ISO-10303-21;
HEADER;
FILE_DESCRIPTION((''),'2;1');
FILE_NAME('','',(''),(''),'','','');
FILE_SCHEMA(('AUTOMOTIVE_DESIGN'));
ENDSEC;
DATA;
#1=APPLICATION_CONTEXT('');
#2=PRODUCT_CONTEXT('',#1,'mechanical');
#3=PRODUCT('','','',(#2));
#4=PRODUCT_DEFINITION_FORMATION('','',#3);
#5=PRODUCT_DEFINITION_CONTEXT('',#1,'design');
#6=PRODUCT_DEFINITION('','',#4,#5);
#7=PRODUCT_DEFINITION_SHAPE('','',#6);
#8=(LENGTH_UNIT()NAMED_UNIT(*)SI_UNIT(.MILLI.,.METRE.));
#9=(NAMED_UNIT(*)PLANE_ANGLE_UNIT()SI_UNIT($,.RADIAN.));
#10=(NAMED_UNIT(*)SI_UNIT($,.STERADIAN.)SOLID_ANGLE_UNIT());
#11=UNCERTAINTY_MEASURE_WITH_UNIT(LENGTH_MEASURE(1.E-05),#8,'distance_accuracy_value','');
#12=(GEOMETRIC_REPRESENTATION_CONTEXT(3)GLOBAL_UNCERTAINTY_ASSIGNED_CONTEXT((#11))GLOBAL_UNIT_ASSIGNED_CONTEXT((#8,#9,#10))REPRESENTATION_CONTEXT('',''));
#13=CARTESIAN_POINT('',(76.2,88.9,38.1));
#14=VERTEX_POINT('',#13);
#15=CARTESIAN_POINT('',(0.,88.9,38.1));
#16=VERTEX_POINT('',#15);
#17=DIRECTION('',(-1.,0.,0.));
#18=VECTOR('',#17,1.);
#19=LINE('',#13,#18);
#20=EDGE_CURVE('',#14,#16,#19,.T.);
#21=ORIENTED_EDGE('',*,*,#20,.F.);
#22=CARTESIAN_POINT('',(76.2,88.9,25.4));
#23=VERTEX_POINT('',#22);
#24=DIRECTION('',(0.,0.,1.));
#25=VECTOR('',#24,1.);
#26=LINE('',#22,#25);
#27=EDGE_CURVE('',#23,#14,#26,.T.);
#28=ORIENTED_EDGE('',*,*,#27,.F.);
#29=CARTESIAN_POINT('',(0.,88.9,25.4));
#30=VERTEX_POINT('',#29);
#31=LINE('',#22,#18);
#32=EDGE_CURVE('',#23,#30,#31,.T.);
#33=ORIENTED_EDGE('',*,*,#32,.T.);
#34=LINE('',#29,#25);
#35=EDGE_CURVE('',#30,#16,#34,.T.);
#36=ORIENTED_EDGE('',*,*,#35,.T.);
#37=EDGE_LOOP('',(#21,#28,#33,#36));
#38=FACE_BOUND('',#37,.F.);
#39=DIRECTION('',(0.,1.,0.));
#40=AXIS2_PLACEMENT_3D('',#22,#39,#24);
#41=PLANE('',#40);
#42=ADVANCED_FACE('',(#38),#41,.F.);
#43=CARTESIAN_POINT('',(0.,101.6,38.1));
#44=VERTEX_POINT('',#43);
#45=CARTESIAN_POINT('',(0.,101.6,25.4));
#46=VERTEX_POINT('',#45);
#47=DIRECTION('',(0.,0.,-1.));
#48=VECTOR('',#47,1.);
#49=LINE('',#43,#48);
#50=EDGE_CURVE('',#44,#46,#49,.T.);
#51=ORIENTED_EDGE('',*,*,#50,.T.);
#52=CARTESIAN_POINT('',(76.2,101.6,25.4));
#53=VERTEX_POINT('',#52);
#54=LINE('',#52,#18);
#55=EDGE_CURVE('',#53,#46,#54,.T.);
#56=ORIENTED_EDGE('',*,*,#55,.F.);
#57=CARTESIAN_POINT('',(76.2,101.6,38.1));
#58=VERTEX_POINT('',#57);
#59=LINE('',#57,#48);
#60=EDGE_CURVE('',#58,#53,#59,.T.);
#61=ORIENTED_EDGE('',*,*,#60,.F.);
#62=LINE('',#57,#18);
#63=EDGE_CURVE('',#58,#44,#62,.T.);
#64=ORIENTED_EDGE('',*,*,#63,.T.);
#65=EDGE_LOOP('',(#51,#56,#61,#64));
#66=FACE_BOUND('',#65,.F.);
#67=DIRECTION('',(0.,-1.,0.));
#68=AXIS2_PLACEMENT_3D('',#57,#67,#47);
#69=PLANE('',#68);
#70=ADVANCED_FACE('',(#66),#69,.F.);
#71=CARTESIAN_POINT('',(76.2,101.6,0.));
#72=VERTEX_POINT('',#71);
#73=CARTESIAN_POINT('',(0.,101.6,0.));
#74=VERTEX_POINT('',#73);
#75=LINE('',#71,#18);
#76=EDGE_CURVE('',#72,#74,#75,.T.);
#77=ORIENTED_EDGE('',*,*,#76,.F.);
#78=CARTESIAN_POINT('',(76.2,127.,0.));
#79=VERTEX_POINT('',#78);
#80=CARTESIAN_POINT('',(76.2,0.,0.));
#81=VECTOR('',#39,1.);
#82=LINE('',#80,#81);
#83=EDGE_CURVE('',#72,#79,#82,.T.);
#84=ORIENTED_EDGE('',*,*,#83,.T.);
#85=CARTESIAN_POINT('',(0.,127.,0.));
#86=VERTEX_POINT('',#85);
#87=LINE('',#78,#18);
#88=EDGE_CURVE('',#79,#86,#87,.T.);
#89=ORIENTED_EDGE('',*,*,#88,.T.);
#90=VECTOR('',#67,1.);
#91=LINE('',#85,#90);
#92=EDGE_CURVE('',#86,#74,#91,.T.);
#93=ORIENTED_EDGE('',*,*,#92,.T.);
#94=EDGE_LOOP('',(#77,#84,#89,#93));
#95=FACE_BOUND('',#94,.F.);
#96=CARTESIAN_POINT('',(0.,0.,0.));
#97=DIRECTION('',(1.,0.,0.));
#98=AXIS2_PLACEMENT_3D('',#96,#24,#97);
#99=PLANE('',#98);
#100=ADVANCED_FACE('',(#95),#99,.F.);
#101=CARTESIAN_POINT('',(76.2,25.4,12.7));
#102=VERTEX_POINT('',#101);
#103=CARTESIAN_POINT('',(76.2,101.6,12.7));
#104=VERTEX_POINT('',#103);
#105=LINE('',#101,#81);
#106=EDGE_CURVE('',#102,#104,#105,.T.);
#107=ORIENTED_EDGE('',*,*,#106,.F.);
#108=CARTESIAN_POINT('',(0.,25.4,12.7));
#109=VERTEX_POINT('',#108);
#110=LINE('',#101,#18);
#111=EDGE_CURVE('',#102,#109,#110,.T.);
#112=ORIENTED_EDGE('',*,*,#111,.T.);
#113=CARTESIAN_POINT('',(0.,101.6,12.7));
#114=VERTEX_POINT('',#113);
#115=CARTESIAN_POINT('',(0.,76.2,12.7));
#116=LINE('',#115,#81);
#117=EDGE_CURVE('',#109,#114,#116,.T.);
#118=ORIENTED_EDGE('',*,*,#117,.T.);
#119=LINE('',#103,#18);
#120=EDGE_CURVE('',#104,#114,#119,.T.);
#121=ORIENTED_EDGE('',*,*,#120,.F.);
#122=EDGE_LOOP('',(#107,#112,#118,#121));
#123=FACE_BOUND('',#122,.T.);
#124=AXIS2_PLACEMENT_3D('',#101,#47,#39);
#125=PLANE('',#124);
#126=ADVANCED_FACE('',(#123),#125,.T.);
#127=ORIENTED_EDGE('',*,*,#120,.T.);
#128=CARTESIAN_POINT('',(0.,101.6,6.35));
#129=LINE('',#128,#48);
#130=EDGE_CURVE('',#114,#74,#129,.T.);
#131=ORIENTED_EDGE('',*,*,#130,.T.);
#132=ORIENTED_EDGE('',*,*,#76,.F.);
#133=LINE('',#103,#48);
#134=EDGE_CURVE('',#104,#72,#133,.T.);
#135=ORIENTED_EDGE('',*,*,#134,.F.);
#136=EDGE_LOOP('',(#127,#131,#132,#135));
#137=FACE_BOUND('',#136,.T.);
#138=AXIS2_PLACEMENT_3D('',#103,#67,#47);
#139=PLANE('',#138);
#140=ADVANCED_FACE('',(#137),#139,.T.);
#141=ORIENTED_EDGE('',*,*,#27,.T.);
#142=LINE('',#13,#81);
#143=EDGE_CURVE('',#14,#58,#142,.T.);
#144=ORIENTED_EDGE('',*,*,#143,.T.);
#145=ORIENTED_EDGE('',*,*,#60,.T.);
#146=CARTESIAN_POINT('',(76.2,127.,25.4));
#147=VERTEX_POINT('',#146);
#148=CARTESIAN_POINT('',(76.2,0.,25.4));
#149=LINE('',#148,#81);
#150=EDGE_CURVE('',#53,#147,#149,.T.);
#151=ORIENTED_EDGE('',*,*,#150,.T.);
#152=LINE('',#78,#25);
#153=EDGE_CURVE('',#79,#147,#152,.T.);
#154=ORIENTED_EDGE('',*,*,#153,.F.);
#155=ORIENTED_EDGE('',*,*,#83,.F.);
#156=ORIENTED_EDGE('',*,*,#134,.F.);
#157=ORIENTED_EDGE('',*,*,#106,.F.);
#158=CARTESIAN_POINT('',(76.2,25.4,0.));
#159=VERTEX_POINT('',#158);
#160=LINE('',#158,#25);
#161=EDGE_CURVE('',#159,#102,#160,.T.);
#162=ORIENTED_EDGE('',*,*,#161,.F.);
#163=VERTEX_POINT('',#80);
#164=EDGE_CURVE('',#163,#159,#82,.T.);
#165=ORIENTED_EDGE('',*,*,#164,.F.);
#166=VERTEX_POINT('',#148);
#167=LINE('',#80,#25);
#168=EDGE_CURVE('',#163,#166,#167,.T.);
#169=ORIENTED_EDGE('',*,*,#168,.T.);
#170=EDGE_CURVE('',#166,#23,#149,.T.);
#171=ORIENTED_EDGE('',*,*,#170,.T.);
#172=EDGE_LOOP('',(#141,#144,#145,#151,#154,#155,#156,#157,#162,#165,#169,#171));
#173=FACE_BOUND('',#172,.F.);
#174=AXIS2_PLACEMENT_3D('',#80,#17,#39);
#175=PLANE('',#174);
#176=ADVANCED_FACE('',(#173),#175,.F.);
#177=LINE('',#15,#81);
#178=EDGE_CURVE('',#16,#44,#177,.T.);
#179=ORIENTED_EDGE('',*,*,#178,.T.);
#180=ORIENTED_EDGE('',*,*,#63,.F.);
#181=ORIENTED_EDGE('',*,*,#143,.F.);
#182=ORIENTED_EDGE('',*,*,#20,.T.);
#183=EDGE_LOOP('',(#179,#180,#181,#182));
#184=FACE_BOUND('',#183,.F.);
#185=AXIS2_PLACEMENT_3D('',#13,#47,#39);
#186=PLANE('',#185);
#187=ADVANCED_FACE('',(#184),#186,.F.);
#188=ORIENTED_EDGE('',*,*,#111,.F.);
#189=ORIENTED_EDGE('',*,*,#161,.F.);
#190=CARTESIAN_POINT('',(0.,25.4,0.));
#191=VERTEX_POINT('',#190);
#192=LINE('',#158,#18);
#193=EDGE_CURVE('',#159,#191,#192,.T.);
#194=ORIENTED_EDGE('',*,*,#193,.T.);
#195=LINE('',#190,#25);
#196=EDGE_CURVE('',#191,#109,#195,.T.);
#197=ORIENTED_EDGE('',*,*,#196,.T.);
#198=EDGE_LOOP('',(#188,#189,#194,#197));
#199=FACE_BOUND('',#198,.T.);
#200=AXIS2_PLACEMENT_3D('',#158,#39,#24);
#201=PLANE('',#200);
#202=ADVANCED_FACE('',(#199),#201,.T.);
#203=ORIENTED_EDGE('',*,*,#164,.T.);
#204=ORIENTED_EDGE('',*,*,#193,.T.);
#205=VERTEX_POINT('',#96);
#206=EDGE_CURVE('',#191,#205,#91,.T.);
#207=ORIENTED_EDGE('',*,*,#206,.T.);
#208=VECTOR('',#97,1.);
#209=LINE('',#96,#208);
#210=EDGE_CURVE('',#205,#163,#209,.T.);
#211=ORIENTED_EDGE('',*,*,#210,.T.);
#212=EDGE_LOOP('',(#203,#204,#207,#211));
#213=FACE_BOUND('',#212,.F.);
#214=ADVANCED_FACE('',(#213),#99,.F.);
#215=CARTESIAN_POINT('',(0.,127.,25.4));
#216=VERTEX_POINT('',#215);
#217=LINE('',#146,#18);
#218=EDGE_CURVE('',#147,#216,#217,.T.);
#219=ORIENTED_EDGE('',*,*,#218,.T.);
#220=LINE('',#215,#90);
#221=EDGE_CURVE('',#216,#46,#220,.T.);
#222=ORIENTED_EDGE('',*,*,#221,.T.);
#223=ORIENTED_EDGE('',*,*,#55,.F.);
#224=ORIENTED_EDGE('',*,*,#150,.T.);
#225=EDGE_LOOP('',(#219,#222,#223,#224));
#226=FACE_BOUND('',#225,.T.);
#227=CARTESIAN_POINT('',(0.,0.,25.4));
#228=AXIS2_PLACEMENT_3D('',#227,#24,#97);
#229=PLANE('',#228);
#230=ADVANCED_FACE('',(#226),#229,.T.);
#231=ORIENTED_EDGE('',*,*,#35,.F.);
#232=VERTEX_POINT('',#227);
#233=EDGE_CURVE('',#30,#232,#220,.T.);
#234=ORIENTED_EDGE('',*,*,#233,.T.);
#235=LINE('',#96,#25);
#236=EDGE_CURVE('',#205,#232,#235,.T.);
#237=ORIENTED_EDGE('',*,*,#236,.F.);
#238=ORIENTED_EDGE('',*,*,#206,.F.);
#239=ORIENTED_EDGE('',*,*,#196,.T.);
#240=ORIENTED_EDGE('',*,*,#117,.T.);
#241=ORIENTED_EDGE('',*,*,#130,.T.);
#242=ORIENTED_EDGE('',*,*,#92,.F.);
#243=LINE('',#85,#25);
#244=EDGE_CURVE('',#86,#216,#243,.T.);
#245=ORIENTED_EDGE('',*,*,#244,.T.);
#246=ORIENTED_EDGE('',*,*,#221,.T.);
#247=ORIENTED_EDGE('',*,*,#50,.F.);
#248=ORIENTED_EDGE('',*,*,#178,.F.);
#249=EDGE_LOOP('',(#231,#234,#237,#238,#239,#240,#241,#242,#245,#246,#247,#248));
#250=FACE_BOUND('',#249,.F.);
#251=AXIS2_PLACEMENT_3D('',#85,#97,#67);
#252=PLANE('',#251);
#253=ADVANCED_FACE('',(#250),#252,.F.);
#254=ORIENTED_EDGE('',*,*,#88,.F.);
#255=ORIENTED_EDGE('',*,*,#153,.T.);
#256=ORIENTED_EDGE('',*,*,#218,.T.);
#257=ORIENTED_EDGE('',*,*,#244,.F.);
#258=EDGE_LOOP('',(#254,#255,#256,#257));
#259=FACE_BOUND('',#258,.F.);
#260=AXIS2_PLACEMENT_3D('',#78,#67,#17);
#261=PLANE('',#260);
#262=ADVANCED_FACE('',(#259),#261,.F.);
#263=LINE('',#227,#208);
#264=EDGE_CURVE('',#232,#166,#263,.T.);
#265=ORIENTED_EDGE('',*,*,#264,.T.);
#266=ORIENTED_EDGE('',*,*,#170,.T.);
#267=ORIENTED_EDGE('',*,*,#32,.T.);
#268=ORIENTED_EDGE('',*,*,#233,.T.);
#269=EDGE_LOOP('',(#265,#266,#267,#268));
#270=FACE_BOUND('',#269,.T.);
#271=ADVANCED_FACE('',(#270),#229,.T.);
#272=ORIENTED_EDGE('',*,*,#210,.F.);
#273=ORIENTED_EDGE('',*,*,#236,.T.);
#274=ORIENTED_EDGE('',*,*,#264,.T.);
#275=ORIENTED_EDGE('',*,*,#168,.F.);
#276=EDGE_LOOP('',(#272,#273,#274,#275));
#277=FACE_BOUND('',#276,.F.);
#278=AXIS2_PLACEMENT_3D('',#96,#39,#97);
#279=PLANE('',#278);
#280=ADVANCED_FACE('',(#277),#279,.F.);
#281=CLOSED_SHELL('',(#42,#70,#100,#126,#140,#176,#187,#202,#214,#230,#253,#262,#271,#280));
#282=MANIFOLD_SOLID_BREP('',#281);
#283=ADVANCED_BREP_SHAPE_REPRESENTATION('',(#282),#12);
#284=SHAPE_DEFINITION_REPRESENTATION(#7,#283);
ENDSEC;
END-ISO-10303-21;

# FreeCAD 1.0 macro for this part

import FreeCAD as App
import Part
import Sketcher
Q = App.Units.Quantity

doc = App.newDocument("Part")
body = doc.addObject("PartDesign::Body", "Body")

# Sketch on XY plane
sketch1 = body.newObject("Sketcher::SketchObject", "Sketch")
sketch1.AttachmentSupport = (doc.getObject("XY_Plane"), [""])
sketch1.MapMode = "FlatFace"
sketch1.addGeometry([
    Part.LineSegment(App.Vector(0, 127, 0), App.Vector(0, 0, 0)),
    Part.LineSegment(App.Vector(0, 0, 0), App.Vector(76, 0, 0)),
    Part.LineSegment(App.Vector(76, 0, 0), App.Vector(76, 127, 0)),
    Part.LineSegment(App.Vector(76, 127, 0), App.Vector(0, 127, 0)),
], False)
sketch1.addConstraint([
    Sketcher.Constraint("Coincident", 0, 2, 1, 1),
    Sketcher.Constraint("Coincident", 1, 2, 2, 1),
    Sketcher.Constraint("Coincident", 2, 2, 3, 1),
    Sketcher.Constraint("Coincident", 3, 2, 0, 1),
    Sketcher.Constraint("Vertical", 0),
    Sketcher.Constraint("Horizontal", 1),
    Sketcher.Constraint("Vertical", 2),
    Sketcher.Constraint("Horizontal", 3),
    Sketcher.Constraint("Coincident", 0, 2, -1, 1),
    Sketcher.Constraint("DistanceX", 1, 1, 1, 2, Q("3 in")),
    Sketcher.Constraint("DistanceY", 0, 2, 0, 1, Q("5 in")),
])
pad1 = body.newObject("PartDesign::Pad", "Pad")
pad1.Profile = sketch1
pad1.Length = Q("1 in")

# Sketch on YZ plane
sketch2 = body.newObject("Sketcher::SketchObject", "Sketch001")
sketch2.AttachmentSupport = (doc.getObject("YZ_Plane"), [""])
sketch2.MapMode = "FlatFace"
sketch2.AttachmentOffset = App.Placement(App.Vector(0, 0, 3 * 25.4), App.Rotation())
sketch2.addGeometry([
    Part.LineSegment(App.Vector(25, 13, 0), App.Vector(25, 0, 0)),
    Part.LineSegment(App.Vector(25, 0, 0), App.Vector(102, 0, 0)),
    Part.LineSegment(App.Vector(102, 0, 0), App.Vector(102, 13, 0)),
    Part.LineSegment(App.Vector(102, 13, 0), App.Vector(25, 13, 0)),
], False)
sketch2.addConstraint([
    Sketcher.Constraint("Coincident", 0, 2, 1, 1),
    Sketcher.Constraint("Coincident", 1, 2, 2, 1),
    Sketcher.Constraint("Coincident", 2, 2, 3, 1),
    Sketcher.Constraint("Coincident", 3, 2, 0, 1),
    Sketcher.Constraint("Vertical", 0),
    Sketcher.Constraint("Horizontal", 1),
    Sketcher.Constraint("Vertical", 2),
    Sketcher.Constraint("Horizontal", 3),
    Sketcher.Constraint("PointOnObject", 0, 2, -1),
    Sketcher.Constraint("DistanceY", 0, 2, 0, 1, Q("0.5 in")),
    Sketcher.Constraint("DistanceX", -1, 1, 0, 2, Q("1 in")),
    Sketcher.Constraint("DistanceX", 1, 1, 1, 2, Q("3 in")),
])
pocket1 = body.newObject("PartDesign::Pocket", "Pocket")
pocket1.Profile = sketch2
pocket1.Type = "ThroughAll"

# Sketch on YZ plane
sketch3 = body.newObject("Sketcher::SketchObject", "Sketch002")
sketch3.AttachmentSupport = (doc.getObject("YZ_Plane"), [""])
sketch3.MapMode = "FlatFace"
sketch3.AttachmentOffset = App.Placement(App.Vector(0, 0, 3 * 25.4), App.Rotation())
sketch3.addGeometry([
    Part.LineSegment(App.Vector(89, 25, 0), App.Vector(102, 25, 0)),
    Part.LineSegment(App.Vector(102, 25, 0), App.Vector(102, 38, 0)),
    Part.LineSegment(App.Vector(102, 38, 0), App.Vector(89, 38, 0)),
    Part.LineSegment(App.Vector(89, 38, 0), App.Vector(89, 25, 0)),
], False)
sketch3.addConstraint([
    Sketcher.Constraint("Coincident", 0, 2, 1, 1),
    Sketcher.Constraint("Coincident", 1, 2, 2, 1),
    Sketcher.Constraint("Coincident", 2, 2, 3, 1),
    Sketcher.Constraint("Coincident", 3, 2, 0, 1),
    Sketcher.Constraint("Horizontal", 0),
    Sketcher.Constraint("Vertical", 1),
    Sketcher.Constraint("Horizontal", 2),
    Sketcher.Constraint("Vertical", 3),
    Sketcher.Constraint("Equal", 2, 1),
    Sketcher.Constraint("DistanceX", 0, 1, 0, 2, Q("0.5 in")),
    Sketcher.Constraint("DistanceY", -1, 1, 0, 2, Q("1 in")),
    Sketcher.Constraint("DistanceX", -1, 1, 0, 2, Q("4 in")),
])
pad2 = body.newObject("PartDesign::Pad", "Pad001")
pad2.Profile = sketch3
pad2.Length = Q("3 in")
pad2.Reversed = True

doc.recompute()
